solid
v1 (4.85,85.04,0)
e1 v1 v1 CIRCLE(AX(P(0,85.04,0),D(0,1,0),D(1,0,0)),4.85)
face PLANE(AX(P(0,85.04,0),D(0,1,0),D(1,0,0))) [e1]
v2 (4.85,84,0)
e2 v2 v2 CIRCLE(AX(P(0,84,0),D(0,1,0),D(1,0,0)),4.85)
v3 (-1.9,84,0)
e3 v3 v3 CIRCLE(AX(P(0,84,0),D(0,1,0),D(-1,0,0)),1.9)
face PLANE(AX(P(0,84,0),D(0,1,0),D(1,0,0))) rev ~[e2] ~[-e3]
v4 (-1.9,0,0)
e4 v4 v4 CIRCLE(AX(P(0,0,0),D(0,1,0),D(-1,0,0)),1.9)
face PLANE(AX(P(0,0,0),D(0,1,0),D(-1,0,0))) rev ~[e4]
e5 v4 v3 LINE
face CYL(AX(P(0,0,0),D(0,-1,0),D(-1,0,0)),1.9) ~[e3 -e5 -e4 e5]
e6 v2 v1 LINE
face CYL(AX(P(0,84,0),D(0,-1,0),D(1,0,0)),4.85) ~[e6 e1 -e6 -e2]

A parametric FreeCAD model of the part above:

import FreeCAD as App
import Part
import Sketcher
from FreeCAD import Vector

doc = App.newDocument("Part")
body = doc.addObject("PartDesign::Body", "Body")

# Sketch on XZ plane
sketch1 = body.newObject("Sketcher::SketchObject", "Sketch")
sketch1.AttachmentSupport = (doc.getObject("XZ_Plane"), [""])
sketch1.MapMode = "FlatFace"
sketch1.addGeometry(Part.Circle(Vector(0, 0, 0), Vector(0, 0, 1), 1.9), False)
sketch1.addConstraint([
    Sketcher.Constraint("Coincident", 0, 3, -1, 1),
    Sketcher.Constraint("Diameter", 0, 3.8),
])
pad1 = body.newObject("PartDesign::Pad", "Pad")
pad1.Profile = sketch1
pad1.Length = 84
pad1.Reversed = True

# Sketch on XZ plane
sketch2 = body.newObject("Sketcher::SketchObject", "Sketch001")
sketch2.AttachmentSupport = (doc.getObject("XZ_Plane"), [""])
sketch2.MapMode = "FlatFace"
sketch2.AttachmentOffset = App.Placement(Vector(0, 0, -84), App.Rotation())
sketch2.addGeometry(Part.Circle(Vector(0, 0, 0), Vector(0, 0, 1), 4.8), False)
sketch2.addConstraint([
    Sketcher.Constraint("Coincident", 0, 3, -1, 1),
    Sketcher.Constraint("Diameter", 0, 9.7),
])
pad2 = body.newObject("PartDesign::Pad", "Pad001")
pad2.Profile = sketch2
pad2.Length = 1.04
pad2.Reversed = True

doc.recompute()
